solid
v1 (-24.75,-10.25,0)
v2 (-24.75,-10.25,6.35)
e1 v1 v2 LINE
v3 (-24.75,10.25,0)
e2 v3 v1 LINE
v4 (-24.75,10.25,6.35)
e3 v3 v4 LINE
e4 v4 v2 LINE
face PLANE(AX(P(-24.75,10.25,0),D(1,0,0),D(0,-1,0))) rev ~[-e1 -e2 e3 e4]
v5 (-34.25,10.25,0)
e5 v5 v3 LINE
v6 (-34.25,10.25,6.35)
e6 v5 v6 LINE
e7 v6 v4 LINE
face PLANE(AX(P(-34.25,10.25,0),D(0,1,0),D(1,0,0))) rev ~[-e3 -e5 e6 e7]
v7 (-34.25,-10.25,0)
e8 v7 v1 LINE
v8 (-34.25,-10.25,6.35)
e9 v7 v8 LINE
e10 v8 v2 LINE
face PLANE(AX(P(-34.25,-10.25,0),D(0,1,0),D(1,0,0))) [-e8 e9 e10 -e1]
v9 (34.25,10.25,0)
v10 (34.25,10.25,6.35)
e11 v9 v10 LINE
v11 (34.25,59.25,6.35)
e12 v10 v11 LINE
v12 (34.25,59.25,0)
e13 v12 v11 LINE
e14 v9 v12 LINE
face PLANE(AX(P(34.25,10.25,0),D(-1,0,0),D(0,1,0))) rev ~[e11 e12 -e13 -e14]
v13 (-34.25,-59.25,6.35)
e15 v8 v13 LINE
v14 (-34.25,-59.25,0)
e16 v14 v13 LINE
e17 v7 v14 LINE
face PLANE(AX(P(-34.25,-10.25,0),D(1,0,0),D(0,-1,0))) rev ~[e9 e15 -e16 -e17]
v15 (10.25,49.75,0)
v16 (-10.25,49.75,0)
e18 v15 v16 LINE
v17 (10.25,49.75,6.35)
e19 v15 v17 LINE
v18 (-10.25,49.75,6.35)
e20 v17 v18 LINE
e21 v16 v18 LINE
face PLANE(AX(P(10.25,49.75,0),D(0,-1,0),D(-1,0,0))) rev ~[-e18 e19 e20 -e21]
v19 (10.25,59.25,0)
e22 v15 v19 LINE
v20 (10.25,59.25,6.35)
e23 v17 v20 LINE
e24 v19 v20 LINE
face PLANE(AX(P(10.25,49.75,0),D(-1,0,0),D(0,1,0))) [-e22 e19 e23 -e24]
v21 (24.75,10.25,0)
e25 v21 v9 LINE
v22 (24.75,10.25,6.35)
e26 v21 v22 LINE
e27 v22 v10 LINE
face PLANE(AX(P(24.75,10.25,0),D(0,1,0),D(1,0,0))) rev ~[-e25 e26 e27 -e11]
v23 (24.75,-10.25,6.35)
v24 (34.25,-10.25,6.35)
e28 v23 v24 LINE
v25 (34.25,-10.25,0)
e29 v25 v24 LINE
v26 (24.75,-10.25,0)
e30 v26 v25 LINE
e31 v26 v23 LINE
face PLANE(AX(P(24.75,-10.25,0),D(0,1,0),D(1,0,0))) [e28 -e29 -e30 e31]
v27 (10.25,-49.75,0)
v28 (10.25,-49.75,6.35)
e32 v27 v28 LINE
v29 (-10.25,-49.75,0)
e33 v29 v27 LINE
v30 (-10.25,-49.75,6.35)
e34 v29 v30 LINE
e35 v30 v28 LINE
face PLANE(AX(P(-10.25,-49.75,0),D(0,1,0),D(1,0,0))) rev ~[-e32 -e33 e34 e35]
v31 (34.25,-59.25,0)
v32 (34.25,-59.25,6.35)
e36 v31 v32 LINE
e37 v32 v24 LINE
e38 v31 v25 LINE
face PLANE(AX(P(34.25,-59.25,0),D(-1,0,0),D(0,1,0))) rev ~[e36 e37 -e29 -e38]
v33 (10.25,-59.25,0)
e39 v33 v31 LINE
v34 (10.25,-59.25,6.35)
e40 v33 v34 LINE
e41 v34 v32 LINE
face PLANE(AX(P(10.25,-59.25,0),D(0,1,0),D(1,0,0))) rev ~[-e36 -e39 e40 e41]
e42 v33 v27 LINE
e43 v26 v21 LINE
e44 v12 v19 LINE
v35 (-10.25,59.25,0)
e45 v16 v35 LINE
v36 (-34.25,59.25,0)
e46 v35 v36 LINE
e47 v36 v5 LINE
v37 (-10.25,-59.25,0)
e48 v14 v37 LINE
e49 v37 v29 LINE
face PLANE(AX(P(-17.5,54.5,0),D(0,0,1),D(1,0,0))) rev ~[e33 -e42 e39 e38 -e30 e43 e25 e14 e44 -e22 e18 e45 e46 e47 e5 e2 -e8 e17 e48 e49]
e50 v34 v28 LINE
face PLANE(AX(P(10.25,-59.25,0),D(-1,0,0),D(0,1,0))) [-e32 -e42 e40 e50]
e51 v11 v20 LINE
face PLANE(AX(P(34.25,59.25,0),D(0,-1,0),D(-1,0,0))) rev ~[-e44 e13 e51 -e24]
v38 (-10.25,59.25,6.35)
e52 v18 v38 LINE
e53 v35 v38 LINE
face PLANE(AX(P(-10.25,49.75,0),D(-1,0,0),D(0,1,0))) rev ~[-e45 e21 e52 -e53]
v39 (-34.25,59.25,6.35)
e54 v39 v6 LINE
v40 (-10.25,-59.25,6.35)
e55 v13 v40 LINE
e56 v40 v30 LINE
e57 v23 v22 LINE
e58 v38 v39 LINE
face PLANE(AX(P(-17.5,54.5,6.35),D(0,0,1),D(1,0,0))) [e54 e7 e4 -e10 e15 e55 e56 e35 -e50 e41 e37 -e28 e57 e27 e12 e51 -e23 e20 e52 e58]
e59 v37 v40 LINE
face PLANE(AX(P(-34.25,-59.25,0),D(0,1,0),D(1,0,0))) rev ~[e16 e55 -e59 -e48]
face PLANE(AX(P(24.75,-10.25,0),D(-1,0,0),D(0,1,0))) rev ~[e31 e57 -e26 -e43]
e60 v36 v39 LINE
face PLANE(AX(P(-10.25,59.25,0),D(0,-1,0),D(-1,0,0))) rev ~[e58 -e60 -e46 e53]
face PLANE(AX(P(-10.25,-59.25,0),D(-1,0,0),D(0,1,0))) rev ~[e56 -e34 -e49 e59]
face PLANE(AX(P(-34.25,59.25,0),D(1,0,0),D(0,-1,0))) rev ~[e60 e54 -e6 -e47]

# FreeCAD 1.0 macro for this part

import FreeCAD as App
import Part
import Sketcher
from FreeCAD import Vector
Q = App.Units.Quantity

doc = App.newDocument("Part")
body = doc.addObject("PartDesign::Body", "Body")

# Sketch on XY plane
sketch1 = body.newObject("Sketcher::SketchObject", "Sketch")
sketch1.AttachmentSupport = (doc.getObject("XY_Plane"), [""])
sketch1.MapMode = "FlatFace"
sketch1.addGeometry([
    Part.LineSegment(Vector(-10, 50, 0), Vector(-10, 59, 0)),  # 0
    Part.LineSegment(Vector(-10, 59, 0), Vector(-34, 59, 0)),  # 1
    Part.LineSegment(Vector(-34, 59, 0), Vector(-34, 10, 0)),  # 2
    Part.LineSegment(Vector(-34, 10, 0), Vector(-25, 10, 0)),  # 3
    Part.LineSegment(Vector(-25, 10, 0), Vector(-25, -10, 0)),  # 4
    Part.LineSegment(Vector(-25, -10, 0), Vector(-34, -10, 0)),  # 5
    Part.LineSegment(Vector(-34, -10, 0), Vector(-34, -59, 0)),  # 6
    Part.LineSegment(Vector(-34, -59, 0), Vector(-10, -59, 0)),  # 7
    Part.LineSegment(Vector(-10, -59, 0), Vector(-10, -50, 0)),  # 8
    Part.LineSegment(Vector(-10, -50, 0), Vector(10, -50, 0)),  # 9
    Part.LineSegment(Vector(10, -50, 0), Vector(10, -59, 0)),  # 10
    Part.LineSegment(Vector(10, -59, 0), Vector(34, -59, 0)),  # 11
    Part.LineSegment(Vector(34, -59, 0), Vector(34, -10, 0)),  # 12
    Part.LineSegment(Vector(34, -10, 0), Vector(25, -10, 0)),  # 13
    Part.LineSegment(Vector(25, -10, 0), Vector(25, 10, 0)),  # 14
    Part.LineSegment(Vector(25, 10, 0), Vector(34, 10, 0)),  # 15
    Part.LineSegment(Vector(34, 10, 0), Vector(34, 59, 0)),  # 16
    Part.LineSegment(Vector(34, 59, 0), Vector(10, 59, 0)),  # 17
    Part.LineSegment(Vector(10, 59, 0), Vector(10, 50, 0)),  # 18
    Part.LineSegment(Vector(10, 50, 0), Vector(-10, 50, 0)),  # 19
], False)
sketch1.addConstraint([
    Sketcher.Constraint("Coincident", 0, 2, 1, 1),
    Sketcher.Constraint("Coincident", 1, 2, 2, 1),
    Sketcher.Constraint("Coincident", 2, 2, 3, 1),
    Sketcher.Constraint("Coincident", 3, 2, 4, 1),
    Sketcher.Constraint("Coincident", 4, 2, 5, 1),
    Sketcher.Constraint("Coincident", 5, 2, 6, 1),
    Sketcher.Constraint("Coincident", 6, 2, 7, 1),
    Sketcher.Constraint("Coincident", 7, 2, 8, 1),
    Sketcher.Constraint("Coincident", 8, 2, 9, 1),
    Sketcher.Constraint("Coincident", 9, 2, 10, 1),
    Sketcher.Constraint("Coincident", 10, 2, 11, 1),
    Sketcher.Constraint("Coincident", 11, 2, 12, 1),
    Sketcher.Constraint("Coincident", 12, 2, 13, 1),
    Sketcher.Constraint("Coincident", 13, 2, 14, 1),
    Sketcher.Constraint("Coincident", 14, 2, 15, 1),
    Sketcher.Constraint("Coincident", 15, 2, 16, 1),
    Sketcher.Constraint("Coincident", 16, 2, 17, 1),
    Sketcher.Constraint("Coincident", 17, 2, 18, 1),
    Sketcher.Constraint("Coincident", 18, 2, 19, 1),
    Sketcher.Constraint("Coincident", 19, 2, 0, 1),
    Sketcher.Constraint("Vertical", 0),
    Sketcher.Constraint("Horizontal", 1),
    Sketcher.Constraint("Vertical", 2),
    Sketcher.Constraint("Horizontal", 3),
    Sketcher.Constraint("Vertical", 4),
    Sketcher.Constraint("Horizontal", 5),
    Sketcher.Constraint("Vertical", 6),
    Sketcher.Constraint("Horizontal", 7),
    Sketcher.Constraint("Vertical", 8),
    Sketcher.Constraint("Horizontal", 9),
    Sketcher.Constraint("Vertical", 10),
    Sketcher.Constraint("Horizontal", 11),
    Sketcher.Constraint("Vertical", 12),
    Sketcher.Constraint("Horizontal", 13),
    Sketcher.Constraint("Vertical", 14),
    Sketcher.Constraint("Horizontal", 15),
    Sketcher.Constraint("Vertical", 16),
    Sketcher.Constraint("Horizontal", 17),
    Sketcher.Constraint("Vertical", 18),
    Sketcher.Constraint("Horizontal", 19),
    Sketcher.Constraint("Symmetric", 0, 2, 10, 2, -1, 1),
    Sketcher.Constraint("Symmetric", 2, 2, 12, 2, -1, 1),
    Sketcher.Constraint("Symmetric", 4, 2, 14, 2, -1, 1),
    Sketcher.Constraint("Symmetric", 6, 2, 16, 2, -1, 1),
    Sketcher.Constraint("Symmetric", 8, 2, 18, 2, -1, 1),
    Sketcher.Constraint("Symmetric", 7, 2, 10, 2, -2),
    Sketcher.Constraint("Symmetric", 5, 2, 12, 2, -2),
    Sketcher.Constraint("Equal", 15, 0),
    Sketcher.Constraint("Equal", 19, 4),
    Sketcher.Constraint("DistanceX", 1, 2, 1, 1, Q("24 mm")),
    Sketcher.Constraint("DistanceY", 2, 2, 2, 1, Q("49 mm")),
    Sketcher.Constraint("DistanceX", 3, 1, 3, 2, Q("9.5 mm")),
    Sketcher.Constraint("DistanceX", 9, 1, 9, 2, Q("20.5 mm")),
])
pad1 = body.newObject("PartDesign::Pad", "Pad")
pad1.Profile = sketch1
pad1.Length = 6.35

doc.recompute()
